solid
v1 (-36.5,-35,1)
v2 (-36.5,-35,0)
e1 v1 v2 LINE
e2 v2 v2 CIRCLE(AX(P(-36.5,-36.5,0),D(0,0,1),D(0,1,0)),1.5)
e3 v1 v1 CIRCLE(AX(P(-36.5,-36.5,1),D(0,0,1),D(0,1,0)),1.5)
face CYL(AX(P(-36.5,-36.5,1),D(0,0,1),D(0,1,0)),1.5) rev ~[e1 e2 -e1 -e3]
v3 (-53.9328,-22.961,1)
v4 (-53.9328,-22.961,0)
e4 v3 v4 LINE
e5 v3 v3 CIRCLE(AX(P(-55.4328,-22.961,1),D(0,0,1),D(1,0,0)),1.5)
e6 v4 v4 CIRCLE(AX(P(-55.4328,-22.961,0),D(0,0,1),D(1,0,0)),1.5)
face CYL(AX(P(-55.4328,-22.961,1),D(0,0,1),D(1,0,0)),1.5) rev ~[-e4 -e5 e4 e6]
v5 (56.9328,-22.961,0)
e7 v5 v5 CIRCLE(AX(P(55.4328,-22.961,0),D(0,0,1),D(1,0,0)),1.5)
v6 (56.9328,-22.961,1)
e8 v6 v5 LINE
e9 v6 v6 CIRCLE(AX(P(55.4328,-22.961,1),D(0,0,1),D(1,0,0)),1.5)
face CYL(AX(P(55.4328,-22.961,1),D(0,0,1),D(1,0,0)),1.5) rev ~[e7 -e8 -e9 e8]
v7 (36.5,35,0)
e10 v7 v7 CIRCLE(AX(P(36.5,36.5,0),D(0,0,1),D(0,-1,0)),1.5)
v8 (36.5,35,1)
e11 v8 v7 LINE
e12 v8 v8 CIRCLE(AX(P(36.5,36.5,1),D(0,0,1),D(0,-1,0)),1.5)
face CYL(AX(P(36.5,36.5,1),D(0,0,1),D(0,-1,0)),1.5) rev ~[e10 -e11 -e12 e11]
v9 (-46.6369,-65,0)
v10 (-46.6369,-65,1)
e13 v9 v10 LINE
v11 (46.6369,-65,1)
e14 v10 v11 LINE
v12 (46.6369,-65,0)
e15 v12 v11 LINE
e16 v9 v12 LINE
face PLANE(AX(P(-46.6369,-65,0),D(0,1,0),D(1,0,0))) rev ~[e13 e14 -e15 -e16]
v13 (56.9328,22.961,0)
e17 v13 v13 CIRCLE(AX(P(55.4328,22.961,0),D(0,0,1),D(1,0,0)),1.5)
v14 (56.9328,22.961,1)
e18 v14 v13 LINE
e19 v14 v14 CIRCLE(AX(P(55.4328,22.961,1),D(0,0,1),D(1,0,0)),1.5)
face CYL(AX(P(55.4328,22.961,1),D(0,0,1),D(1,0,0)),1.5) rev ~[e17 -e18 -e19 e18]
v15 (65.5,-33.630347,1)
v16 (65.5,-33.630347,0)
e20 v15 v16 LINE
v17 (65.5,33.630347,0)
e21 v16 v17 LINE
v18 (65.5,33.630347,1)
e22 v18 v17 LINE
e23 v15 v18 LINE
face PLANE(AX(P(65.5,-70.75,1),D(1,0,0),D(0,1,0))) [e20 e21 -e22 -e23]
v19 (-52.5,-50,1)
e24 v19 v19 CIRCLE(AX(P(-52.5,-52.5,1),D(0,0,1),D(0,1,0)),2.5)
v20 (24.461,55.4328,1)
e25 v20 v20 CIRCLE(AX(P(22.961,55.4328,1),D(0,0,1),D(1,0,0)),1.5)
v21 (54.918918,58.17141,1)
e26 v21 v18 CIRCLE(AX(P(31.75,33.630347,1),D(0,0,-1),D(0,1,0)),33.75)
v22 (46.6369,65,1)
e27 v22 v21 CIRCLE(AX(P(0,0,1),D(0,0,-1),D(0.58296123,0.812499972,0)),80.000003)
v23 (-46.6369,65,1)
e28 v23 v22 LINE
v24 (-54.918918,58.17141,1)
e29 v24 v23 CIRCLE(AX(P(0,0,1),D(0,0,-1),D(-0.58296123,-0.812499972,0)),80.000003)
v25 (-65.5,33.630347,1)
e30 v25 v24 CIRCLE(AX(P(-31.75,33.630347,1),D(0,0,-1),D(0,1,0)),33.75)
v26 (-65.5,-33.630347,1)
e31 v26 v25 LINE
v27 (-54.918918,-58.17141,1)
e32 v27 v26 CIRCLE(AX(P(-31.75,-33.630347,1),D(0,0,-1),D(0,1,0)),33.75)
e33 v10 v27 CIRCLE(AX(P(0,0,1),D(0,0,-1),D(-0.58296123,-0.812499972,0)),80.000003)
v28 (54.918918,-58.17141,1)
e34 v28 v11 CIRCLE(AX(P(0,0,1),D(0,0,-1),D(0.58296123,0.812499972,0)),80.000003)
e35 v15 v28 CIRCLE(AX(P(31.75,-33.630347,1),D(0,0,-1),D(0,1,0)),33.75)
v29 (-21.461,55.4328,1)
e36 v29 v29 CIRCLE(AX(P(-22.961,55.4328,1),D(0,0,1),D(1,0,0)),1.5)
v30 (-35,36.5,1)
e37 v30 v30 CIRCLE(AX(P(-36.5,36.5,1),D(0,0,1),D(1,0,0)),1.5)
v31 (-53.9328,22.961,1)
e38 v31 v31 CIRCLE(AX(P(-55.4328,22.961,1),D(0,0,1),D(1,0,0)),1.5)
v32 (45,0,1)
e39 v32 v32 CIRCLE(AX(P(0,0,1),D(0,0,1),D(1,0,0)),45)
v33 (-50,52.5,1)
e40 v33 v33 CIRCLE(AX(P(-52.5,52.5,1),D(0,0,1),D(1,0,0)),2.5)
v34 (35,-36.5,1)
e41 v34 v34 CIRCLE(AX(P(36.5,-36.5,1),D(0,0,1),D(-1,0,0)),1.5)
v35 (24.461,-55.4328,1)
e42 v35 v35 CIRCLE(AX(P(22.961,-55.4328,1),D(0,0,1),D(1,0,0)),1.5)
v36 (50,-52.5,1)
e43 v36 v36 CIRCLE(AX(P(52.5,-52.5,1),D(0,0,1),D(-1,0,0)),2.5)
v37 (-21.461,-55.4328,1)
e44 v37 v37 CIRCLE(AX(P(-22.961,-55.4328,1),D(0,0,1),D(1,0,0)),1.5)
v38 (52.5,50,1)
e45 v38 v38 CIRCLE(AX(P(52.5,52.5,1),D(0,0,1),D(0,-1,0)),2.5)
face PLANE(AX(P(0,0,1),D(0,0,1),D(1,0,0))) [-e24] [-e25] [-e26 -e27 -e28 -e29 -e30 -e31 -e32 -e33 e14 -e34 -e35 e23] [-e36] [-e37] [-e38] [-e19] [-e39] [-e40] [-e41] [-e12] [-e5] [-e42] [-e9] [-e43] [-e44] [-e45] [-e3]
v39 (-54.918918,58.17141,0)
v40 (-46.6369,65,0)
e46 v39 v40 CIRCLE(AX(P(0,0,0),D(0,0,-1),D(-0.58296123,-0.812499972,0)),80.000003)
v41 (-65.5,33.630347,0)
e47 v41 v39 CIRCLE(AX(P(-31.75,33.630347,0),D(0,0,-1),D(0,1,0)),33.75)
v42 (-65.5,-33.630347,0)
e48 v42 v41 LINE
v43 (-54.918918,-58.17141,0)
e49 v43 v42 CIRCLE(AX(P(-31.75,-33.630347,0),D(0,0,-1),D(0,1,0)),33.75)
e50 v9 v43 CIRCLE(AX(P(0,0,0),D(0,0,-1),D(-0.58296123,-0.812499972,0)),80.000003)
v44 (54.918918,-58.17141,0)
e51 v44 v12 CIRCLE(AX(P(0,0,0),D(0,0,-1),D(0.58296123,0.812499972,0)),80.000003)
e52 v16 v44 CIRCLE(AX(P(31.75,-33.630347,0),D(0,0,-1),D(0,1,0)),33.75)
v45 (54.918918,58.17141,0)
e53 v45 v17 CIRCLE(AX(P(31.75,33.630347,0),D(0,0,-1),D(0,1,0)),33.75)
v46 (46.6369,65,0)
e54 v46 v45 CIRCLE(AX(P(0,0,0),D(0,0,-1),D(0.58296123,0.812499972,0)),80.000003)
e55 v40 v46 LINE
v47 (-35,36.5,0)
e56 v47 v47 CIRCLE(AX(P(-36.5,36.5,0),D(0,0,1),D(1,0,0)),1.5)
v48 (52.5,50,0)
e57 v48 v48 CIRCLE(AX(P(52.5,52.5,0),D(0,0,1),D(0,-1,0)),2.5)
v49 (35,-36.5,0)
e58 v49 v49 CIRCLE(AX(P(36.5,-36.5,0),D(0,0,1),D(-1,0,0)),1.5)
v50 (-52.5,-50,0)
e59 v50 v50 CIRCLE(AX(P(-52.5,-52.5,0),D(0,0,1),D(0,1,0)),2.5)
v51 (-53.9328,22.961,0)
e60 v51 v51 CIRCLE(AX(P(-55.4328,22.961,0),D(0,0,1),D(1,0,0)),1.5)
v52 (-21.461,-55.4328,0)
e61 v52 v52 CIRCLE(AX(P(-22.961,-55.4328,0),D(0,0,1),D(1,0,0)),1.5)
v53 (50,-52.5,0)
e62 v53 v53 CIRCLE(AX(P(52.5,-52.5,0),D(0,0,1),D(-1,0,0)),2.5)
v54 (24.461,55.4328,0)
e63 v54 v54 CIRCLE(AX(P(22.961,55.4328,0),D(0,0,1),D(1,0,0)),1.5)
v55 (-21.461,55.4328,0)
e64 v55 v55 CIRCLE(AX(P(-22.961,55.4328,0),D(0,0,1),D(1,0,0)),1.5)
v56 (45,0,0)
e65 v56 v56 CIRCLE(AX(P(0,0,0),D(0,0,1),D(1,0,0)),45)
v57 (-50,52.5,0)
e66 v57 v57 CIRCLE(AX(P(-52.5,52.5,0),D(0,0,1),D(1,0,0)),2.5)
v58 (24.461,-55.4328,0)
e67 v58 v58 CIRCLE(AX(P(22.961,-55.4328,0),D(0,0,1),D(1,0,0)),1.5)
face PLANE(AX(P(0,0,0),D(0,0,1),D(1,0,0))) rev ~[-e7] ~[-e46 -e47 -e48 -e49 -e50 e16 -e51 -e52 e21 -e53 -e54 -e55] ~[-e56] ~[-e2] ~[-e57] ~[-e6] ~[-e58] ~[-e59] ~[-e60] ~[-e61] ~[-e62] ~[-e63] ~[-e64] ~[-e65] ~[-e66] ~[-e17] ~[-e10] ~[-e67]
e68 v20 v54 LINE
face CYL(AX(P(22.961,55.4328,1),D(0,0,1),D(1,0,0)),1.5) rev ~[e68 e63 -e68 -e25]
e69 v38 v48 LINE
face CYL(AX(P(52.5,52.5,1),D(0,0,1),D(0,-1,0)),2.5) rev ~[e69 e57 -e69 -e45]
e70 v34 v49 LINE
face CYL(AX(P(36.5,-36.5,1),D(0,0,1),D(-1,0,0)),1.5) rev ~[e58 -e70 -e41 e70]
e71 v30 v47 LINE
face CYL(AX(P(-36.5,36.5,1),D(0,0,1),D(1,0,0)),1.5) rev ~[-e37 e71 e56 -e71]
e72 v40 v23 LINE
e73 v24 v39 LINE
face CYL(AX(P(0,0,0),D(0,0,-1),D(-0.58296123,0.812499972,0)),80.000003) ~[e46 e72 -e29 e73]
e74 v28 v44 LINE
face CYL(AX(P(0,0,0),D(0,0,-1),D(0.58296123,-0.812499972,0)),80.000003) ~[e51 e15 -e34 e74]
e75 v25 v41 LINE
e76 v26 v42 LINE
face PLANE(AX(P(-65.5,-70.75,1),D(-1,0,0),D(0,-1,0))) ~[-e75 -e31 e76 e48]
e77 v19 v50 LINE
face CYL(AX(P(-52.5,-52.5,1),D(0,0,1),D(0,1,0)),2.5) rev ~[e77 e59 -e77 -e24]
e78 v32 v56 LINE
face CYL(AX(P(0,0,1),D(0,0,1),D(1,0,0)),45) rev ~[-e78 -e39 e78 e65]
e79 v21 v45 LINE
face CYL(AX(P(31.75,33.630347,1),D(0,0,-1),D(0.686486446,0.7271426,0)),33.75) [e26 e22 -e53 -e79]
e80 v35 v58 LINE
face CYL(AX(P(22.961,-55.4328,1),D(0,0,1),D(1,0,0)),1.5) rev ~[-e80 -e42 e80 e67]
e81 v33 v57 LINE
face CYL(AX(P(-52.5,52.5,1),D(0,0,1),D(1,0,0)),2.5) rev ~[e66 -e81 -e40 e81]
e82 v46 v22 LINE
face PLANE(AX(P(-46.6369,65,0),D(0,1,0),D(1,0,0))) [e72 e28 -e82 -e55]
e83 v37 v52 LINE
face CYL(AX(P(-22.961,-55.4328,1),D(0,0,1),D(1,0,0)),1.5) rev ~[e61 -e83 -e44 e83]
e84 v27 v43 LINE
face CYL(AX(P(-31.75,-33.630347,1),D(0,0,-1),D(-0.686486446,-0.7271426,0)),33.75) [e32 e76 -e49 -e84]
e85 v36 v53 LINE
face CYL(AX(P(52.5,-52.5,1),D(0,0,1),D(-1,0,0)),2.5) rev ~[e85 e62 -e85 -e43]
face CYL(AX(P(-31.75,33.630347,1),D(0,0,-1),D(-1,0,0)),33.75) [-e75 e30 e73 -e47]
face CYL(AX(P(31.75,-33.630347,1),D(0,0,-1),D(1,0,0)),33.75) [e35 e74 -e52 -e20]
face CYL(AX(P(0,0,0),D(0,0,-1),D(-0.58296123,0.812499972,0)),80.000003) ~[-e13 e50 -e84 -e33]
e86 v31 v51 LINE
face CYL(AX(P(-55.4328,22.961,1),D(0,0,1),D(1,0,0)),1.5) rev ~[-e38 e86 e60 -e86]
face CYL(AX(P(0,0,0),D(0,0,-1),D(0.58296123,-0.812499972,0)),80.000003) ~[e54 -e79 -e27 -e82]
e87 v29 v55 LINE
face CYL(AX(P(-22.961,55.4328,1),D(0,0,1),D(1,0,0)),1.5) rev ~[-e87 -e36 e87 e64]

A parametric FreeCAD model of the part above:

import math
import FreeCAD as App
import Part
import Sketcher

V = App.Vector
Q = App.Units.Quantity


def edges_at(feature, points):
    """Names of the edges that pass closest to the given points."""
    edges = feature.Shape.Edges
    near = lambda p: min(range(len(edges)), key=lambda i: edges[i].distToShape(Part.Vertex(*p))[0])
    return sorted({f"Edge{near(p) + 1}" for p in points})


def add_polygon(sketch, points):
    """Adds a closed chain of lines whose ends are joined by coincident constraints."""
    first, n = sketch.GeometryCount, len(points)
    for a, b in zip(points, points[1:] + points[:1]):
        sketch.addGeometry(Part.LineSegment(App.Vector(*a, 0), App.Vector(*b, 0)), False)
    for i in range(n):
        sketch.addConstraint(Sketcher.Constraint("Coincident", first + i, 2, first + (i + 1) % n, 1))

doc = App.newDocument("Part")
params = doc.addObject("Spreadsheet::Sheet", "Params")
for row, (alias, value) in enumerate([
    ("sketch1_radius", "80 mm"),
    ("pad1_length", "1 mm"),
    ("sketch2_diameter", "3 mm"),
    ("sketch3_diameter", "3 mm"),
    ("sketch4_diameter", "5 mm"),
    ("sketch5_diameter", "90 mm"),
    ("fillet_radius", "33.75 mm"),
], start=1):
    params.set(f"A{row}", alias)
    params.set(f"B{row}", "=" + value)
    params.setAlias(f"B{row}", alias)

body = doc.addObject("PartDesign::Body", "Body")

sketch1 = body.newObject("Sketcher::SketchObject", "Sketch")
sketch1.AttachmentSupport = (doc.getObject("XY_Plane"), [""])
sketch1.MapMode = "FlatFace"
sketch1.addGeometry(Part.ArcOfCircle(Part.Circle(V(0, 0, 0), V(0, 0, 1), 80.000003), math.radians(125.65909), math.radians(234.34091)), False)
sketch1.addGeometry(Part.LineSegment(V(-46.6369, -65, 0), V(46.6369, -65, 0)), False)
sketch1.addGeometry(Part.ArcOfCircle(Part.Circle(V(0, 0, 0), V(0, 0, 1), 80.000003), math.radians(-54.34091), math.radians(54.34091)), False)
sketch1.addGeometry(Part.LineSegment(V(46.6369, 65, 0), V(-46.6369, 65, 0)), False)
sketch1.addConstraint(Sketcher.Constraint("Coincident", 0, 2, 1, 1))
sketch1.addConstraint(Sketcher.Constraint("Coincident", 1, 2, 2, 1))
sketch1.addConstraint(Sketcher.Constraint("Coincident", 2, 2, 3, 1))
sketch1.addConstraint(Sketcher.Constraint("Coincident", 3, 2, 0, 1))
sketch1.addConstraint(Sketcher.Constraint("Horizontal", 1))
sketch1.addConstraint(Sketcher.Constraint("Horizontal", 3))
sketch1.addConstraint(Sketcher.Constraint("Coincident", 0, 3, -1, 1))
sketch1.addConstraint(Sketcher.Constraint("Coincident", 2, 3, -1, 1))
sketch1.addConstraint(Sketcher.Constraint("Equal", 0, 2))
sketch1.addConstraint(Sketcher.Constraint("Vertical", 1, 2, 2, 2))
sketch1.addConstraint(Sketcher.Constraint("Radius", 0, Q("80 mm")))
sketch1.addConstraint(Sketcher.Constraint("DistanceY", 0, 2, -1, 1, Q("65 mm")))
sketch1.setExpression("Constraints[10]", "Params.sketch1_radius")
pad1 = body.newObject("PartDesign::Pad", "Pad")
pad1.Profile = sketch1
pad1.setExpression("Length", "Params.pad1_length")

sketch2 = body.newObject("Sketcher::SketchObject", "Sketch001")
sketch2.AttachmentSupport = (doc.getObject("XY_Plane"), [""])
sketch2.MapMode = "FlatFace"
sketch2.AttachmentOffset = App.Placement(V(0, 0, 1), App.Rotation())
sketch2.addGeometry(Part.Circle(V(55.4328, 22.961, 0), V(0, 0, 1), 1.5), False)
sketch2.addGeometry(Part.Circle(V(22.961, 55.4328, 0), V(0, 0, 1), 1.5), False)
sketch2.addGeometry(Part.Circle(V(-22.961, 55.4328, 0), V(0, 0, 1), 1.5), False)
sketch2.addGeometry(Part.Circle(V(-55.4328, 22.961, 0), V(0, 0, 1), 1.5), False)
sketch2.addGeometry(Part.Circle(V(-55.4328, -22.961, 0), V(0, 0, 1), 1.5), False)
sketch2.addGeometry(Part.Circle(V(-22.961, -55.4328, 0), V(0, 0, 1), 1.5), False)
sketch2.addGeometry(Part.Circle(V(22.961, -55.4328, 0), V(0, 0, 1), 1.5), False)
sketch2.addGeometry(Part.Circle(V(55.4328, -22.961, 0), V(0, 0, 1), 1.5), False)
sketch2.addConstraint(Sketcher.Constraint("Equal", 0, 1))
sketch2.addConstraint(Sketcher.Constraint("Equal", 1, 2))
sketch2.addConstraint(Sketcher.Constraint("Equal", 2, 3))
sketch2.addConstraint(Sketcher.Constraint("Equal", 3, 4))
sketch2.addConstraint(Sketcher.Constraint("Equal", 4, 5))
sketch2.addConstraint(Sketcher.Constraint("Equal", 5, 6))
sketch2.addConstraint(Sketcher.Constraint("Equal", 6, 7))
sketch2.addConstraint(Sketcher.Constraint("Symmetric", 0, 3, 4, 3, -1, 1))
sketch2.addConstraint(Sketcher.Constraint("Symmetric", 1, 3, 5, 3, -1, 1))
sketch2.addConstraint(Sketcher.Constraint("Symmetric", 2, 3, 6, 3, -1, 1))
sketch2.addConstraint(Sketcher.Constraint("Symmetric", 3, 3, 7, 3, -1, 1))
sketch2.addConstraint(Sketcher.Constraint("Symmetric", 1, 3, 2, 3, -2))
sketch2.addConstraint(Sketcher.Constraint("Symmetric", 0, 3, 3, 3, -2))
sketch2.addConstraint(Sketcher.Constraint("Diameter", 0, Q("3 mm")))
sketch2.addConstraint(Sketcher.Constraint("DistanceY", -1, 1, 0, 3, Q("22.961 mm")))
sketch2.addConstraint(Sketcher.Constraint("DistanceX", -1, 1, 1, 3, Q("22.961 mm")))
sketch2.addConstraint(Sketcher.Constraint("DistanceX", -1, 1, 0, 3, Q("55.4328 mm")))
sketch2.addConstraint(Sketcher.Constraint("DistanceY", -1, 1, 1, 3, Q("55.4328 mm")))
sketch2.setExpression("Constraints[13]", "Params.sketch2_diameter")
pocket1 = body.newObject("PartDesign::Pocket", "Pocket")
pocket1.Profile = sketch2
pocket1.Type = "ThroughAll"

sketch3 = body.newObject("Sketcher::SketchObject", "Sketch002")
sketch3.AttachmentSupport = (doc.getObject("XY_Plane"), [""])
sketch3.MapMode = "FlatFace"
sketch3.AttachmentOffset = App.Placement(V(0, 0, 1), App.Rotation())
sketch3.addGeometry(Part.Circle(V(-36.5, 36.5, 0), V(0, 0, 1), 1.5), False)
sketch3.addConstraint(Sketcher.Constraint("Diameter", 0, Q("3 mm")))
sketch3.addConstraint(Sketcher.Constraint("DistanceX", 0, 3, -1, 1, Q("36.5 mm")))
sketch3.addConstraint(Sketcher.Constraint("DistanceY", -1, 1, 0, 3, Q("36.5 mm")))
sketch3.setExpression("Constraints[0]", "Params.sketch3_diameter")
pocket2 = body.newObject("PartDesign::Pocket", "Pocket001")
pocket2.Profile = sketch3
pocket2.Type = "ThroughAll"
doc.recompute()

polarpattern = body.newObject("PartDesign::PolarPattern", "PolarPattern")
polarpattern.Originals = [pocket2]
polarpattern.Axis = (doc.getObject("Z_Axis"), [""])
polarpattern.Angle = 360
polarpattern.Occurrences = 4
body.Tip = polarpattern

sketch4 = body.newObject("Sketcher::SketchObject", "Sketch003")
sketch4.AttachmentSupport = (doc.getObject("XY_Plane"), [""])
sketch4.MapMode = "FlatFace"
sketch4.AttachmentOffset = App.Placement(V(0, 0, 1), App.Rotation())
sketch4.addGeometry(Part.Circle(V(-52.5, 52.5, 0), V(0, 0, 1), 2.5), False)
sketch4.addConstraint(Sketcher.Constraint("Diameter", 0, Q("5 mm")))
sketch4.addConstraint(Sketcher.Constraint("DistanceX", 0, 3, -1, 1, Q("52.5 mm")))
sketch4.addConstraint(Sketcher.Constraint("DistanceY", -1, 1, 0, 3, Q("52.5 mm")))
sketch4.setExpression("Constraints[0]", "Params.sketch4_diameter")
pocket3 = body.newObject("PartDesign::Pocket", "Pocket002")
pocket3.Profile = sketch4
pocket3.Type = "ThroughAll"
doc.recompute()

polarpattern2 = body.newObject("PartDesign::PolarPattern", "PolarPattern001")
polarpattern2.Originals = [pocket3]
polarpattern2.Axis = (doc.getObject("Z_Axis"), [""])
polarpattern2.Angle = 360
polarpattern2.Occurrences = 4
body.Tip = polarpattern2

sketch5 = body.newObject("Sketcher::SketchObject", "Sketch004")
sketch5.AttachmentSupport = (doc.getObject("XY_Plane"), [""])
sketch5.MapMode = "FlatFace"
sketch5.AttachmentOffset = App.Placement(V(0, 0, 1), App.Rotation())
sketch5.addGeometry(Part.Circle(V(0, 0, 0), V(0, 0, 1), 45), False)
sketch5.addConstraint(Sketcher.Constraint("Coincident", 0, 3, -1, 1))
sketch5.addConstraint(Sketcher.Constraint("Diameter", 0, Q("90 mm")))
sketch5.setExpression("Constraints[1]", "Params.sketch5_diameter")
pocket4 = body.newObject("PartDesign::Pocket", "Pocket003")
pocket4.Profile = sketch5
pocket4.Type = "ThroughAll"

sketch6 = body.newObject("Sketcher::SketchObject", "Sketch005")
sketch6.AttachmentSupport = (doc.getObject("XY_Plane"), [""])
sketch6.MapMode = "FlatFace"
sketch6.AttachmentOffset = App.Placement(V(0, 0, 1), App.Rotation())
add_polygon(sketch6, [(65.5, 70.75), (65.5, -90.2742), (105.9964, -90.2742), (105.9964, 70.75)])
sketch6.addConstraint(Sketcher.Constraint("Vertical", 0))
sketch6.addConstraint(Sketcher.Constraint("Horizontal", 1))
sketch6.addConstraint(Sketcher.Constraint("Vertical", 2))
sketch6.addConstraint(Sketcher.Constraint("Horizontal", 3))
sketch6.addConstraint(Sketcher.Constraint("DistanceX", -1, 1, 0, 2, Q("65.5 mm")))
sketch6.addConstraint(Sketcher.Constraint("DistanceY", -1, 1, 2, 2, Q("70.75 mm")))
sketch6.addConstraint(Sketcher.Constraint("DistanceX", 1, 1, 1, 2, Q("40.4964 mm")))
sketch6.addConstraint(Sketcher.Constraint("DistanceY", 0, 2, 0, 1, Q("161.0242 mm")))
pocket5 = body.newObject("PartDesign::Pocket", "Pocket004")
pocket5.Profile = sketch6
pocket5.Type = "ThroughAll"
doc.recompute()

mirrored = body.newObject("PartDesign::Mirrored", "Mirrored")
mirrored.Originals = [pocket5]
mirrored.MirrorPlane = (doc.getObject("YZ_Plane"), [""])
body.Tip = mirrored
doc.recompute()

fillet = body.newObject("PartDesign::Fillet", "Fillet")
fillet.Base = (mirrored, edges_at(mirrored, [
    (65.5, 45.932, 0.5),
    (65.5, -45.932, 0.5),
    (-65.5, -45.932, 0.5),
    (-65.5, 45.932, 0.5),
]))
fillet.setExpression("Radius", "Params.fillet_radius")

doc.recompute()
